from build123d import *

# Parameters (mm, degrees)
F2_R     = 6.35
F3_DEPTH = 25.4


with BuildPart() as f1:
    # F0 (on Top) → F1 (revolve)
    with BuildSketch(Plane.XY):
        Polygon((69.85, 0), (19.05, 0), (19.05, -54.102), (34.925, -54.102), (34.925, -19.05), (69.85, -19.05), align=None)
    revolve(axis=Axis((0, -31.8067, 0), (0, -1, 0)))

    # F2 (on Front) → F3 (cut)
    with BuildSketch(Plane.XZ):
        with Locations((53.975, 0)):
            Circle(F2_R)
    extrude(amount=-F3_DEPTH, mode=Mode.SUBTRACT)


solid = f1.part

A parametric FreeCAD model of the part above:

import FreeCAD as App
import Part
import Sketcher
Q = App.Units.Quantity


def add_polygon(sketch, points):
    """Adds a closed chain of lines whose ends are joined by coincident constraints."""
    first, n = sketch.GeometryCount, len(points)
    for a, b in zip(points, points[1:] + points[:1]):
        sketch.addGeometry(Part.LineSegment(App.Vector(*a, 0), App.Vector(*b, 0)), False)
    for i in range(n):
        sketch.addConstraint(Sketcher.Constraint("Coincident", first + i, 2, first + (i + 1) % n, 1))

doc = App.newDocument("Part")
params = doc.addObject("Spreadsheet::Sheet", "Params")
for row, (alias, value) in enumerate([
    ("sketch1_width", "2 in"),
    ("sketch1_height", "2.13 in"),
    ("sketch1_height2", "1.38 in"),
    ("sketch1_width2", "0.625 in"),
    ("revolution_angle", "360 deg"),
    ("sketch2_diameter", "0.5 in"),
    ("pocket1_length", "1 in"),
], start=1):
    params.set(f"A{row}", alias)
    params.set(f"B{row}", "=" + value)
    params.setAlias(f"B{row}", alias)

body = doc.addObject("PartDesign::Body", "Body")

# Sketch on XY plane
sketch1 = body.newObject("Sketcher::SketchObject", "Sketch")
sketch1.AttachmentSupport = (doc.getObject("XY_Plane"), [""])
sketch1.MapMode = "FlatFace"
add_polygon(sketch1, [(70, 0), (19, 0), (19, -54), (35, -54), (35, -19), (70, -19)])  # lines 0-5
sketch1.addConstraint([
    Sketcher.Constraint("Horizontal", 0),
    Sketcher.Constraint("Vertical", 1),
    Sketcher.Constraint("Horizontal", 2),
    Sketcher.Constraint("Vertical", 3),
    Sketcher.Constraint("Horizontal", 4),
    Sketcher.Constraint("Vertical", 5),
    Sketcher.Constraint("PointOnObject", 0, 2, -1),
    Sketcher.Constraint("DistanceX", 0, 2, 0, 1, Q("2 in")),
    Sketcher.Constraint("DistanceY", 1, 2, 1, 1, Q("2.13 in")),
    Sketcher.Constraint("DistanceY", 3, 1, 3, 2, Q("1.38 in")),
    Sketcher.Constraint("DistanceX", 2, 1, 2, 2, Q("0.625 in")),
    Sketcher.Constraint("DistanceX", -1, 1, 0, 2, Q("0.75 in")),
])
sketch1.setExpression("Constraints[13]", "Params.sketch1_width")
sketch1.setExpression("Constraints[14]", "Params.sketch1_height")
sketch1.setExpression("Constraints[15]", "Params.sketch1_height2")
sketch1.setExpression("Constraints[16]", "Params.sketch1_width2")
revolution = body.newObject("PartDesign::Revolution", "Revolution")
revolution.Profile = sketch1
revolution.ReferenceAxis = (sketch1, ["V_Axis"])
revolution.setExpression("Angle", "Params.revolution_angle")

# Sketch on XZ plane
sketch2 = body.newObject("Sketcher::SketchObject", "Sketch001")
sketch2.AttachmentSupport = (doc.getObject("XZ_Plane"), [""])
sketch2.MapMode = "FlatFace"
sketch2.addGeometry(Part.Circle(App.Vector(54, 0, 0), App.Vector(0, 0, 1), 6), False)
sketch2.addConstraint([
    Sketcher.Constraint("PointOnObject", 0, 3, -1),
    Sketcher.Constraint("Diameter", 0, Q("0.5 in")),
    Sketcher.Constraint("DistanceX", -1, 1, 0, 3, Q("2.125 in")),
])
sketch2.setExpression("Constraints[1]", "Params.sketch2_diameter")
pocket1 = body.newObject("PartDesign::Pocket", "Pocket")
pocket1.Profile = sketch2
pocket1.setExpression("Length", "Params.pocket1_length")

doc.recompute()
